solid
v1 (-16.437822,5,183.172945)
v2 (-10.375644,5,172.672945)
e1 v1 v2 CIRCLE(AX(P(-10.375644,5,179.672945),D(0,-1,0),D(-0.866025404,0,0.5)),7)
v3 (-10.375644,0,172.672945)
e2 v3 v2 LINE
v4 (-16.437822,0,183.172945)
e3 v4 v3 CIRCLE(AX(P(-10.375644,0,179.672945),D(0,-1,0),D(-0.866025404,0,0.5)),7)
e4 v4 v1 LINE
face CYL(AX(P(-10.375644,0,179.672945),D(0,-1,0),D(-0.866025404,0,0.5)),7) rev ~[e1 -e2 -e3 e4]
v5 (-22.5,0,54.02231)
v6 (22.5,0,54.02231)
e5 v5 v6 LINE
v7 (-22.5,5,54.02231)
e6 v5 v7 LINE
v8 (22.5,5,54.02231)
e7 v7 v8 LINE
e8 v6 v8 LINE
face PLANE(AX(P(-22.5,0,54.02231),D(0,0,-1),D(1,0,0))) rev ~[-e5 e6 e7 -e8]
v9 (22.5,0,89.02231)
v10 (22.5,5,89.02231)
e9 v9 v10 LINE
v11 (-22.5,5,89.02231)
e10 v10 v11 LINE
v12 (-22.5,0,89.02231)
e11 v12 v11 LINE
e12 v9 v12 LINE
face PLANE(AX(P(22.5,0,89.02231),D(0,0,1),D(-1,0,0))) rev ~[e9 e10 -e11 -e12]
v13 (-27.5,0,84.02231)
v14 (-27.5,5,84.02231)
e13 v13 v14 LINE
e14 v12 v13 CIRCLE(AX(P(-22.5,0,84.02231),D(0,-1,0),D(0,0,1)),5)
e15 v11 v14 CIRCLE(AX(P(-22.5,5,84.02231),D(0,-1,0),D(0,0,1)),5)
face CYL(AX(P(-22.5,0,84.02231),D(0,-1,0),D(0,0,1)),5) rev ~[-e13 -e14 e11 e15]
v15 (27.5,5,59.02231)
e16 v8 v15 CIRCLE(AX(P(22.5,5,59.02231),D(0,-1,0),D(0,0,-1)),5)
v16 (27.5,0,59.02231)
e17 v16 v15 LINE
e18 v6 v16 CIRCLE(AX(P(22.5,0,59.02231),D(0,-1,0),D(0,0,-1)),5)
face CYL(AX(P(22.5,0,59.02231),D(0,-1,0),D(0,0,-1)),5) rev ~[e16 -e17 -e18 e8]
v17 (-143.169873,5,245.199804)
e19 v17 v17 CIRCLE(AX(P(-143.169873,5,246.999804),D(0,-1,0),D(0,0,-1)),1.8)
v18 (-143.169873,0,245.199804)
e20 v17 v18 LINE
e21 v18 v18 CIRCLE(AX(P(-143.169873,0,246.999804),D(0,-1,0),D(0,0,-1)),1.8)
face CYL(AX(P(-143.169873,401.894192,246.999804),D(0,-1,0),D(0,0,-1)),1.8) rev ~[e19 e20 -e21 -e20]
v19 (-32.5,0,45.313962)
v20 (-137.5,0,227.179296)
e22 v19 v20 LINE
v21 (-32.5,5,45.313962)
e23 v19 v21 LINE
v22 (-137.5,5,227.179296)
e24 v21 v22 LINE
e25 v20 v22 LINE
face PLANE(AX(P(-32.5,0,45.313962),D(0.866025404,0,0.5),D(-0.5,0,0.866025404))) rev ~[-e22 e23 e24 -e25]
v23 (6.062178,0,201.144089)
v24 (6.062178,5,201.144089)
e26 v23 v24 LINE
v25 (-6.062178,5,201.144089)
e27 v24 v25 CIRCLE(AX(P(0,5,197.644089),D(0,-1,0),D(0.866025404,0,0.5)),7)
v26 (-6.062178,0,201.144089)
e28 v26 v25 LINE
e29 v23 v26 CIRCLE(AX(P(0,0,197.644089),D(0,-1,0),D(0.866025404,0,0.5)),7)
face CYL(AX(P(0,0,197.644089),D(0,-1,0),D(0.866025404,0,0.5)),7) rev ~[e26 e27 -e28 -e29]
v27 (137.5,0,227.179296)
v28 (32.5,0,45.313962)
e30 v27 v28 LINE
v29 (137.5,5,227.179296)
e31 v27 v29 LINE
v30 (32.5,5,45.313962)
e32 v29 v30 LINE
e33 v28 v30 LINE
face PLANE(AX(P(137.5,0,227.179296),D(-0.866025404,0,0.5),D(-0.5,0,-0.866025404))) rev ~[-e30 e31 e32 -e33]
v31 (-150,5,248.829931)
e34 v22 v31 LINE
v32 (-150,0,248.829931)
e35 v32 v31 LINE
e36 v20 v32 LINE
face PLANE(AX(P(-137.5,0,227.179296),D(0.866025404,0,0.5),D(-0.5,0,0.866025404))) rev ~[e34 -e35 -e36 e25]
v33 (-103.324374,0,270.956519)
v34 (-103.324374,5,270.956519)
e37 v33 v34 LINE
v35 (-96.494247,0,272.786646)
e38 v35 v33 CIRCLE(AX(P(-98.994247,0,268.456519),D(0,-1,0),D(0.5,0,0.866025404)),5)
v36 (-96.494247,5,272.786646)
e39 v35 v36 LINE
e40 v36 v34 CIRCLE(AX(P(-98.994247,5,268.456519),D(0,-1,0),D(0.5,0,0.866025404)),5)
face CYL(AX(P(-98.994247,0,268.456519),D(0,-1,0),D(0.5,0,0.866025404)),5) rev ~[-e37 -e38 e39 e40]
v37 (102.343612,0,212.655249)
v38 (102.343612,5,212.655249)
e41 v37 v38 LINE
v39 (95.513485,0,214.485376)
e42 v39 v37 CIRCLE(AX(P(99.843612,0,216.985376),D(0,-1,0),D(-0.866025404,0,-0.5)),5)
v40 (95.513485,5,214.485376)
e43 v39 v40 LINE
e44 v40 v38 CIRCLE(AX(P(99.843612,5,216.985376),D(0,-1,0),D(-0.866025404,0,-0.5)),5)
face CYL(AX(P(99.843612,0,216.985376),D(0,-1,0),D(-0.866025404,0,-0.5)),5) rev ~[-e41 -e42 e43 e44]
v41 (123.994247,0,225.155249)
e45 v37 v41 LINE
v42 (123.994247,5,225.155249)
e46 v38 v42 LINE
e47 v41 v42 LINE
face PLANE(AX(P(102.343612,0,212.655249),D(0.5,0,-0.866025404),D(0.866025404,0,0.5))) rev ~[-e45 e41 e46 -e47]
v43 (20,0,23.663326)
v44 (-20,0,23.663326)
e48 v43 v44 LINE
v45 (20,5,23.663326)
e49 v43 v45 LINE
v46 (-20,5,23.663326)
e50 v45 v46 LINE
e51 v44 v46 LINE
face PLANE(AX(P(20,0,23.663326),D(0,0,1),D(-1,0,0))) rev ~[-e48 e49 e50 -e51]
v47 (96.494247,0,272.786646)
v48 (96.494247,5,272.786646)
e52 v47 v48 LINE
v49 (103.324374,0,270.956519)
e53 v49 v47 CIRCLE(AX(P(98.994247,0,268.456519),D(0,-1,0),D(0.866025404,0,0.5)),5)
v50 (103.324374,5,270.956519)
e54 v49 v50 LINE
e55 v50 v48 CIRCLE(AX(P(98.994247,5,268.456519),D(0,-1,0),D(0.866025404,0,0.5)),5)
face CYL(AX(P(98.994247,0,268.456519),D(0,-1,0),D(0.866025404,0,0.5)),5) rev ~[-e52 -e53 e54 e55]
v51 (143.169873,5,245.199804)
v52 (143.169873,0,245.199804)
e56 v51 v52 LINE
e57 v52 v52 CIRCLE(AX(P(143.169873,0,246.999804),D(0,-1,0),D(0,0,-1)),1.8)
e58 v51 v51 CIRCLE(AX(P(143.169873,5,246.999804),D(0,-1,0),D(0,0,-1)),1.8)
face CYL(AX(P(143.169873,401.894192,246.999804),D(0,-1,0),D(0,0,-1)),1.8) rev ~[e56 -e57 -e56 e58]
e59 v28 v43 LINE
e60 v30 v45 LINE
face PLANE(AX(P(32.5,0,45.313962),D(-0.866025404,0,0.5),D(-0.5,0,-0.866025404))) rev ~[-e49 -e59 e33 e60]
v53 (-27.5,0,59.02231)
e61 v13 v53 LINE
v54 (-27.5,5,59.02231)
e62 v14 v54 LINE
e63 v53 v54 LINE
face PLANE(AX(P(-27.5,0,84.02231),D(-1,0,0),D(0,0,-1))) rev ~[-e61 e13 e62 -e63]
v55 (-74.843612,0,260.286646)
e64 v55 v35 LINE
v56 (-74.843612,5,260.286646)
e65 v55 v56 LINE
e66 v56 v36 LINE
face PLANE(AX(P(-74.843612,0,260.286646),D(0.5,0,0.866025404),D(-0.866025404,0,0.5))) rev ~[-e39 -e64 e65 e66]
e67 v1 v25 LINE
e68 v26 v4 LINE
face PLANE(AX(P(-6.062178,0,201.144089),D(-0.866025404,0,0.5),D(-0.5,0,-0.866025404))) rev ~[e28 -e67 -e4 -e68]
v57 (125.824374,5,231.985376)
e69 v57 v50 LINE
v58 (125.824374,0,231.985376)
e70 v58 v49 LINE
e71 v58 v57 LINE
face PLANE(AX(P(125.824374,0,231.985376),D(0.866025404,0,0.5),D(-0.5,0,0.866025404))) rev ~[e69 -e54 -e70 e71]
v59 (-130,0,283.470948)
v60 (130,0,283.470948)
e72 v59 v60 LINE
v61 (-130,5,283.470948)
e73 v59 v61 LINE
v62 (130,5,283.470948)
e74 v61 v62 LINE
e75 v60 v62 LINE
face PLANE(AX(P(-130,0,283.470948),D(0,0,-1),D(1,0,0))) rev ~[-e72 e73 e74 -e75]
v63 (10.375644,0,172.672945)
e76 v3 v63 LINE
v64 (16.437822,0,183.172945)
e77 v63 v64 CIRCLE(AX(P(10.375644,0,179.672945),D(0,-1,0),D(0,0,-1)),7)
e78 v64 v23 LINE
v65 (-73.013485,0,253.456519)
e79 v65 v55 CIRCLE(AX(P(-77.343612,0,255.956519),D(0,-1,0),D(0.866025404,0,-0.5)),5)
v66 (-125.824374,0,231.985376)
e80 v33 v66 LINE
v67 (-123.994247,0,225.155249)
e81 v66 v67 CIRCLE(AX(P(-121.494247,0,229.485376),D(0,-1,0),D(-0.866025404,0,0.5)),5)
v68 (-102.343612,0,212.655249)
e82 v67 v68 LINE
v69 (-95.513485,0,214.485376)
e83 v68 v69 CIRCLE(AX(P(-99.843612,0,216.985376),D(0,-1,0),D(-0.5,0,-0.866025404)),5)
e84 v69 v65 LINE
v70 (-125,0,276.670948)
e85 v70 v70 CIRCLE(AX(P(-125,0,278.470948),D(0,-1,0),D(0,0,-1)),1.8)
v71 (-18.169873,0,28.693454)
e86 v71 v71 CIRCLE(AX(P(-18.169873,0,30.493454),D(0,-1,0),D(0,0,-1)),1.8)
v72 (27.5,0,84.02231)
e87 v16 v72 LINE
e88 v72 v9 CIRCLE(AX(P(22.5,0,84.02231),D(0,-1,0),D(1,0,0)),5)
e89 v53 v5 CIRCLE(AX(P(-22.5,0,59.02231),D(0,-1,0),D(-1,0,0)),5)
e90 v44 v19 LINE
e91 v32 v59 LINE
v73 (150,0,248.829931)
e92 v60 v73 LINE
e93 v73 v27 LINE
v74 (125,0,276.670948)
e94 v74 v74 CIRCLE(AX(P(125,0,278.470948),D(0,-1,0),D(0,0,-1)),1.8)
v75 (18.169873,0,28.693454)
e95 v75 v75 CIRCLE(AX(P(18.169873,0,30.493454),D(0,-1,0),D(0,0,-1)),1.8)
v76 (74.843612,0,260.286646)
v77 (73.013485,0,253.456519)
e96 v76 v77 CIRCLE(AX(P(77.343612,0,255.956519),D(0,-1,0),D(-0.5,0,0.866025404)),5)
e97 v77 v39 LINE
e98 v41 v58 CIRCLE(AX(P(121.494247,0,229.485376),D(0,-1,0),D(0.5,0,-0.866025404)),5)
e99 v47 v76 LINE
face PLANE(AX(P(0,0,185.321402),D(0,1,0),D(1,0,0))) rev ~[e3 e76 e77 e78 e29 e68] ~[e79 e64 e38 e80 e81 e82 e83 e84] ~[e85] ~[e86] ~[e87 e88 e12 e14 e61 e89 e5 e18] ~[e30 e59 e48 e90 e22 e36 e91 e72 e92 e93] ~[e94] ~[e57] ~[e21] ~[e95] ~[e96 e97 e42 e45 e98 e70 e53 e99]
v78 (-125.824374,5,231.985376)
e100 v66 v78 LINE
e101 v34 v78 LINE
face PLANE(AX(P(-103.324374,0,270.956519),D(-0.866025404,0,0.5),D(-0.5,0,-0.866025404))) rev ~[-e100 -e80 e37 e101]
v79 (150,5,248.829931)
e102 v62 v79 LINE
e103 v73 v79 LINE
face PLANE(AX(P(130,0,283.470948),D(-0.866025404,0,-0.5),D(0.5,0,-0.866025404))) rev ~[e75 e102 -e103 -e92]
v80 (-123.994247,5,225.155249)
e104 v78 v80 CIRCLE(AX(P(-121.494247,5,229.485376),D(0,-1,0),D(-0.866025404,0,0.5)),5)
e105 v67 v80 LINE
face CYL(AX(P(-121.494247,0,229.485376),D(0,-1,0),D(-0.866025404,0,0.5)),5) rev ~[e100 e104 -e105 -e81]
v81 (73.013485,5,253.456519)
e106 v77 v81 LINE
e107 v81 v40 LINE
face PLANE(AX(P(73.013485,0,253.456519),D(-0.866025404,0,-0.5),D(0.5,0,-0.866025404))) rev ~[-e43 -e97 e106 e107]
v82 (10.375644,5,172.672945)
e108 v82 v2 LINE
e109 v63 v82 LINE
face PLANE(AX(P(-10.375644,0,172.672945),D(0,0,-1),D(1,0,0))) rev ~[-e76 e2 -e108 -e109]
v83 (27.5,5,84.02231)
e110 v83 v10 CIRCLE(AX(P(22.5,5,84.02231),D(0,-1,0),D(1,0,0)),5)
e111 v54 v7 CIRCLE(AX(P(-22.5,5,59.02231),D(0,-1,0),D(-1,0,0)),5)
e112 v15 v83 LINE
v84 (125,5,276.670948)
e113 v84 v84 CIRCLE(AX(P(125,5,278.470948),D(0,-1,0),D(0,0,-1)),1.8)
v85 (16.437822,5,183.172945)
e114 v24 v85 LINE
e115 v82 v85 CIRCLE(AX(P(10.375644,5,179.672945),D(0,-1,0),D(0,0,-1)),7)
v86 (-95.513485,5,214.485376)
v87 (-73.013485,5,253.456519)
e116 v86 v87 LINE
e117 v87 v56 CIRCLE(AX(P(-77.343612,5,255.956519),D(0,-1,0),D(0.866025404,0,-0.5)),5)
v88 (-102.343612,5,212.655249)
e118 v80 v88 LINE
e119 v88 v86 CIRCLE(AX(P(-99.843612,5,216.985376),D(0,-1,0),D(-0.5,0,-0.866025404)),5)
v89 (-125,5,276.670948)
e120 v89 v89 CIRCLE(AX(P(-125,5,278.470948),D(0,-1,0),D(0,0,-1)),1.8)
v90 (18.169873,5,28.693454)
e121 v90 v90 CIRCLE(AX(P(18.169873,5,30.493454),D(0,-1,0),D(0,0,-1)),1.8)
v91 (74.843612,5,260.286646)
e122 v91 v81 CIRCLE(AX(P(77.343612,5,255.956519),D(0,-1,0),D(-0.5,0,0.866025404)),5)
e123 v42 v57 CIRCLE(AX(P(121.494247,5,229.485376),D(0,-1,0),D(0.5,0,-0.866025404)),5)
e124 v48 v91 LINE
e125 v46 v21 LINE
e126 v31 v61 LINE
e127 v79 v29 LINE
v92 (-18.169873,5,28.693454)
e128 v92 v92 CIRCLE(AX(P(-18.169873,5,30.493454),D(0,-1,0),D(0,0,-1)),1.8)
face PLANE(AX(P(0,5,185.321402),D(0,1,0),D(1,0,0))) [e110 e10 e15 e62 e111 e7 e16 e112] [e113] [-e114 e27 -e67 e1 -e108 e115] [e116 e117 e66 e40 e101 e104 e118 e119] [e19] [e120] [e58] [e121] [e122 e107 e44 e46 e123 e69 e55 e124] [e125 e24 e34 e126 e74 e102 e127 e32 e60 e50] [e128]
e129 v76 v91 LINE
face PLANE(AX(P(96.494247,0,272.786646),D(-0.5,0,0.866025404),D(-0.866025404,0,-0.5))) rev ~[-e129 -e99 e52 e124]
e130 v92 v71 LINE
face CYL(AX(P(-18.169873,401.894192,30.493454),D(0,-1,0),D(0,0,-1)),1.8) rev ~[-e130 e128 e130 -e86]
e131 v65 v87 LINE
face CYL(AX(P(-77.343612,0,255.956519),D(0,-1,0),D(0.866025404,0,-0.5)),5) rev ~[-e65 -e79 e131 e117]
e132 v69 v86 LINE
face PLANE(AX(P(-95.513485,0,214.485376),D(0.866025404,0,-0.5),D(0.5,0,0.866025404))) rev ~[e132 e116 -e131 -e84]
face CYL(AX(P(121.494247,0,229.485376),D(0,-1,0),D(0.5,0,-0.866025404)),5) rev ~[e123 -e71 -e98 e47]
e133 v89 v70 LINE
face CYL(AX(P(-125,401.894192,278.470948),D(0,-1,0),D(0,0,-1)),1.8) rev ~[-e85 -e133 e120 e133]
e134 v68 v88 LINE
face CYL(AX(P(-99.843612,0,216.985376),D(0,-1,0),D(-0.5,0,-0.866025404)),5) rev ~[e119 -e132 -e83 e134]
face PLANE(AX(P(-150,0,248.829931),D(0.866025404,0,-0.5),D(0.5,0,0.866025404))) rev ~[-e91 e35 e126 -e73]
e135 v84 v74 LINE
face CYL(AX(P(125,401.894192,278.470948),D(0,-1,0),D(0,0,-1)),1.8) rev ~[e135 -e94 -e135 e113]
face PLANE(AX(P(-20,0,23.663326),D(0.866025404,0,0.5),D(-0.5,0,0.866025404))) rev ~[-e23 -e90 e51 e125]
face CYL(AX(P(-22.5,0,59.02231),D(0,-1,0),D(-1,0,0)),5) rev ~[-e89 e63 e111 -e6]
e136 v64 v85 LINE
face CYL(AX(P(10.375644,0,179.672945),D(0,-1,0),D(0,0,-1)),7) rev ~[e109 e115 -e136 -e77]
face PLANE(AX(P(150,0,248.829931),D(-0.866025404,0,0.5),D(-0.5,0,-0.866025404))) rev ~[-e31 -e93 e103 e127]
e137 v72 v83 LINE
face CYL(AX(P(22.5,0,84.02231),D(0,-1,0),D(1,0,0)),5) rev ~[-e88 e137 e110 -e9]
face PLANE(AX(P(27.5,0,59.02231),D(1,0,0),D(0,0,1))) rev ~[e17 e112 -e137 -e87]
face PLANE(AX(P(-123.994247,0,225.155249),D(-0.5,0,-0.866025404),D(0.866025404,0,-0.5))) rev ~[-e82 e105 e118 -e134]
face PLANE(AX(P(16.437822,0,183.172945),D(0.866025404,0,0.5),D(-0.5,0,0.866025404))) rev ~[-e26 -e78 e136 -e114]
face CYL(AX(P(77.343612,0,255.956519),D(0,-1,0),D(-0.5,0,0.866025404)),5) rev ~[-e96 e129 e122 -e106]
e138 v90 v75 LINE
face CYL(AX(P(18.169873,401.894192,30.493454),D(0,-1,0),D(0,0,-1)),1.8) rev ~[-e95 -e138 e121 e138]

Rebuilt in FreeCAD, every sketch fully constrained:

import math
import FreeCAD as App
import Part
import Sketcher
Q = App.Units.Quantity

doc = App.newDocument("Part")
body = doc.addObject("PartDesign::Body", "Body")

sketch1 = body.newObject("Sketcher::SketchObject", "Sketch")
sketch1.AttachmentSupport = (doc.getObject("XZ_Plane"), [""])
sketch1.MapMode = "FlatFace"
sketch1.addGeometry([
    Part.LineSegment(App.Vector(-20, 24, 0), App.Vector(-32, 45, 0)),
    Part.LineSegment(App.Vector(-32, 45, 0), App.Vector(-138, 227, 0)),
    Part.LineSegment(App.Vector(-138, 227, 0), App.Vector(-150, 249, 0)),
    Part.LineSegment(App.Vector(-150, 249, 0), App.Vector(-130, 283, 0)),
    Part.LineSegment(App.Vector(-130, 283, 0), App.Vector(130, 283, 0)),
    Part.LineSegment(App.Vector(130, 283, 0), App.Vector(150, 249, 0)),
    Part.LineSegment(App.Vector(150, 249, 0), App.Vector(138, 227, 0)),
    Part.LineSegment(App.Vector(138, 227, 0), App.Vector(32, 45, 0)),
    Part.LineSegment(App.Vector(32, 45, 0), App.Vector(20, 24, 0)),
    Part.LineSegment(App.Vector(20, 24, 0), App.Vector(-20, 24, 0)),
    Part.LineSegment(App.Vector(-75, 260, 0), App.Vector(-96, 273, 0)),
    Part.ArcOfCircle(Part.Circle(App.Vector(-99, 268, 0), App.Vector(0, 0, 1), 5), math.radians(60), math.radians(150)),
    Part.LineSegment(App.Vector(-103, 271, 0), App.Vector(-126, 232, 0)),
    Part.ArcOfCircle(Part.Circle(App.Vector(-121, 229, 0), App.Vector(0, 0, 1), 5), math.radians(150), math.radians(240)),
    Part.LineSegment(App.Vector(-124, 225, 0), App.Vector(-102, 213, 0)),
    Part.ArcOfCircle(Part.Circle(App.Vector(-100, 217, 0), App.Vector(0, 0, 1), 5), math.radians(-120), math.radians(-30)),
    Part.LineSegment(App.Vector(-96, 214, 0), App.Vector(-73, 253, 0)),
    Part.ArcOfCircle(Part.Circle(App.Vector(-77, 256, 0), App.Vector(0, 0, 1), 5), math.radians(-30), math.radians(60)),
    Part.LineSegment(App.Vector(96, 273, 0), App.Vector(75, 260, 0)),
    Part.ArcOfCircle(Part.Circle(App.Vector(77, 256, 0), App.Vector(0, 0, 1), 5), math.radians(120), math.radians(210)),
    Part.LineSegment(App.Vector(73, 253, 0), App.Vector(96, 214, 0)),
    Part.ArcOfCircle(Part.Circle(App.Vector(100, 217, 0), App.Vector(0, 0, 1), 5), math.radians(-150), math.radians(-60)),
    Part.LineSegment(App.Vector(102, 213, 0), App.Vector(124, 225, 0)),
    Part.ArcOfCircle(Part.Circle(App.Vector(121, 229, 0), App.Vector(0, 0, 1), 5), math.radians(-60), math.radians(30)),
    Part.LineSegment(App.Vector(126, 232, 0), App.Vector(103, 271, 0)),
    Part.ArcOfCircle(Part.Circle(App.Vector(99, 268, 0), App.Vector(0, 0, 1), 5), math.radians(30), math.radians(120)),
    Part.ArcOfCircle(Part.Circle(App.Vector(22, 84, 0), App.Vector(0, 0, 1), 5), math.radians(0), math.radians(90)),
    Part.LineSegment(App.Vector(22, 89, 0), App.Vector(-22, 89, 0)),
    Part.ArcOfCircle(Part.Circle(App.Vector(-22, 84, 0), App.Vector(0, 0, 1), 5), math.radians(90), math.radians(180)),
    Part.LineSegment(App.Vector(-28, 84, 0), App.Vector(-28, 59, 0)),
    Part.ArcOfCircle(Part.Circle(App.Vector(-22, 59, 0), App.Vector(0, 0, 1), 5), math.radians(180), math.radians(270)),
    Part.LineSegment(App.Vector(-22, 54, 0), App.Vector(22, 54, 0)),
    Part.ArcOfCircle(Part.Circle(App.Vector(22, 59, 0), App.Vector(0, 0, 1), 5), math.radians(-90), math.radians(0)),
    Part.LineSegment(App.Vector(28, 59, 0), App.Vector(28, 84, 0)),
], False)
sketch1.addConstraint([
    Sketcher.Constraint("Coincident", 0, 2, 1, 1),
    Sketcher.Constraint("Coincident", 1, 2, 2, 1),
    Sketcher.Constraint("Coincident", 2, 2, 3, 1),
    Sketcher.Constraint("Coincident", 3, 2, 4, 1),
    Sketcher.Constraint("Coincident", 4, 2, 5, 1),
    Sketcher.Constraint("Coincident", 5, 2, 6, 1),
    Sketcher.Constraint("Coincident", 6, 2, 7, 1),
    Sketcher.Constraint("Coincident", 7, 2, 8, 1),
    Sketcher.Constraint("Coincident", 8, 2, 9, 1),
    Sketcher.Constraint("Coincident", 9, 2, 0, 1),
    Sketcher.Constraint("Tangent", 10, 2, 11, 1),
    Sketcher.Constraint("Tangent", 11, 2, 12, 1),
    Sketcher.Constraint("Tangent", 12, 2, 13, 1),
    Sketcher.Constraint("Tangent", 13, 2, 14, 1),
    Sketcher.Constraint("Tangent", 14, 2, 15, 1),
    Sketcher.Constraint("Tangent", 15, 2, 16, 1),
    Sketcher.Constraint("Tangent", 16, 2, 17, 1),
    Sketcher.Constraint("Tangent", 17, 2, 10, 1),
    Sketcher.Constraint("Tangent", 18, 2, 19, 1),
    Sketcher.Constraint("Tangent", 19, 2, 20, 1),
    Sketcher.Constraint("Tangent", 20, 2, 21, 1),
    Sketcher.Constraint("Tangent", 21, 2, 22, 1),
    Sketcher.Constraint("Tangent", 22, 2, 23, 1),
    Sketcher.Constraint("Tangent", 23, 2, 24, 1),
    Sketcher.Constraint("Tangent", 24, 2, 25, 1),
    Sketcher.Constraint("Tangent", 25, 2, 18, 1),
    Sketcher.Constraint("Tangent", 26, 2, 27, 1),
    Sketcher.Constraint("Tangent", 27, 2, 28, 1),
    Sketcher.Constraint("Tangent", 28, 2, 29, 1),
    Sketcher.Constraint("Tangent", 29, 2, 30, 1),
    Sketcher.Constraint("Tangent", 30, 2, 31, 1),
    Sketcher.Constraint("Tangent", 31, 2, 32, 1),
    Sketcher.Constraint("Tangent", 32, 2, 33, 1),
    Sketcher.Constraint("Tangent", 33, 2, 26, 1),
    Sketcher.Constraint("Horizontal", 4),
    Sketcher.Constraint("Horizontal", 9),
    Sketcher.Constraint("Horizontal", 27),
    Sketcher.Constraint("Vertical", 29),
    Sketcher.Constraint("Horizontal", 31),
    Sketcher.Constraint("Vertical", 33),
    Sketcher.Constraint("Equal", 11, 13),
    Sketcher.Constraint("Equal", 13, 15),
    Sketcher.Constraint("Equal", 15, 17),
    Sketcher.Constraint("Equal", 17, 19),
    Sketcher.Constraint("Equal", 19, 21),
    Sketcher.Constraint("Equal", 21, 23),
    Sketcher.Constraint("Equal", 23, 25),
    Sketcher.Constraint("Equal", 25, 26),
    Sketcher.Constraint("Equal", 26, 28),
    Sketcher.Constraint("Equal", 28, 30),
    Sketcher.Constraint("Equal", 30, 32),
    Sketcher.Constraint("Symmetric", 17, 3, 19, 3, -2),
    Sketcher.Constraint("Symmetric", 15, 3, 21, 3, -2),
    Sketcher.Constraint("Symmetric", 13, 3, 23, 3, -2),
    Sketcher.Constraint("Symmetric", 11, 3, 25, 3, -2),
    Sketcher.Constraint("Symmetric", 2, 2, 5, 2, -2),
    Sketcher.Constraint("Symmetric", 1, 2, 6, 2, -2),
    Sketcher.Constraint("Symmetric", 0, 2, 7, 2, -2),
    Sketcher.Constraint("Parallel", 0, 1),
    Sketcher.Constraint("Parallel", 1, 2),
    Sketcher.Constraint("Parallel", 2, 5),
    Sketcher.Constraint("Parallel", 3, 6),
    Sketcher.Constraint("Parallel", 7, 8),
    Sketcher.Constraint("Perpendicular", 8, 10),
    Sketcher.Constraint("Perpendicular", 10, 12),
    Sketcher.Constraint("Perpendicular", 12, 14),
    Sketcher.Constraint("Perpendicular", 14, 16),
    Sketcher.Constraint("Equal", 0, 2),
    Sketcher.Constraint("Equal", 8, 10),
    Sketcher.Constraint("Radius", 11, 5.0),
    Sketcher.Constraint("DistanceX", 4, 1, 4, 2, 260.0),
    Sketcher.Constraint("DistanceX", 9, 2, 9, 1, 40.0),
    Sketcher.Constraint("DistanceX", 27, 2, 27, 1, 45.0),
    Sketcher.Constraint("DistanceY", 29, 2, 29, 1, 25.0),
    Sketcher.Constraint("Angle", 0, Q("120 deg")),
    Sketcher.Constraint("Distance", 0, 25.0),
    Sketcher.Constraint("Distance", 1, 210.0),
    Sketcher.Constraint("Distance", 12, 45.0),
    Sketcher.Constraint("DistanceX", 0, 2, 30, 3, 10.0),
    Sketcher.Constraint("DistanceY", 10, 2, 3, 2, 10.684301),
    Sketcher.Constraint("DistanceY", -1, 1, 11, 3, 268.456519),
    Sketcher.Constraint("DistanceY", -1, 1, 26, 3, 84.02231),
    Sketcher.Constraint("DistanceX", 11, 3, 19, 3, 176.337859),
])
pad1 = body.newObject("PartDesign::Pad", "Pad")
pad1.Profile = sketch1
pad1.Length = 5
pad1.Reversed = True

sketch2 = body.newObject("Sketcher::SketchObject", "Sketch001")
sketch2.AttachmentSupport = (doc.getObject("XZ_Plane"), [""])
sketch2.MapMode = "FlatFace"
sketch2.AttachmentOffset = App.Placement(App.Vector(0, 0, -5), App.Rotation())
sketch2.addGeometry([
    Part.Circle(App.Vector(-143.2, 247, 0), App.Vector(0, 0, 1), 1.8),
    Part.Circle(App.Vector(-125, 278.5, 0), App.Vector(0, 0, 1), 1.8),
    Part.Circle(App.Vector(125, 278.5, 0), App.Vector(0, 0, 1), 1.8),
    Part.Circle(App.Vector(143.2, 247, 0), App.Vector(0, 0, 1), 1.8),
    Part.Circle(App.Vector(-18.2, 30.5, 0), App.Vector(0, 0, 1), 1.8),
    Part.Circle(App.Vector(18.2, 30.5, 0), App.Vector(0, 0, 1), 1.8),
], False)
sketch2.addConstraint([
    Sketcher.Constraint("Equal", 0, 1),
    Sketcher.Constraint("Equal", 1, 2),
    Sketcher.Constraint("Equal", 2, 3),
    Sketcher.Constraint("Equal", 3, 4),
    Sketcher.Constraint("Equal", 4, 5),
    Sketcher.Constraint("Symmetric", 1, 3, 2, 3, -2),
    Sketcher.Constraint("Symmetric", 0, 3, 3, 3, -2),
    Sketcher.Constraint("Symmetric", 4, 3, 5, 3, -2),
    Sketcher.Constraint("Diameter", 0, 3.6),
    Sketcher.Constraint("DistanceX", 1, 3, -1, 1, 125.0),
    Sketcher.Constraint("DistanceX", 0, 3, 4, 3, 125.0),
    Sketcher.Constraint("DistanceY", 4, 3, 0, 3, 216.506351),
    Sketcher.Constraint("DistanceX", 0, 3, -1, 1, 143.169873),
    Sketcher.Constraint("DistanceY", -1, 1, 0, 3, 246.999804),
    Sketcher.Constraint("DistanceY", -1, 1, 1, 3, 278.470948),
])
doc.recompute()
hole = body.newObject("PartDesign::Hole", "Hole")
hole.Profile = sketch2
hole.ThreadType = "None"
hole.Diameter = 3.6
hole.DepthType = "ThroughAll"
hole.Reversed = True

sketch3 = body.newObject("Sketcher::SketchObject", "Sketch002")
sketch3.AttachmentSupport = (doc.getObject("XZ_Plane"), [""])
sketch3.MapMode = "FlatFace"
sketch3.addGeometry([
    Part.LineSegment(App.Vector(16, 183, 0), App.Vector(6, 201, 0)),
    Part.ArcOfCircle(Part.Circle(App.Vector(0, 198, 0), App.Vector(0, 0, 1), 7), math.radians(30), math.radians(150)),
    Part.LineSegment(App.Vector(-6, 201, 0), App.Vector(-16, 183, 0)),
    Part.ArcOfCircle(Part.Circle(App.Vector(-10, 180, 0), App.Vector(0, 0, 1), 7), math.radians(150), math.radians(270)),
    Part.LineSegment(App.Vector(-10, 173, 0), App.Vector(10, 173, 0)),
    Part.ArcOfCircle(Part.Circle(App.Vector(10, 180, 0), App.Vector(0, 0, 1), 7), math.radians(-90), math.radians(30)),
], False)
sketch3.addConstraint([
    Sketcher.Constraint("Tangent", 0, 2, 1, 1),
    Sketcher.Constraint("Tangent", 1, 2, 2, 1),
    Sketcher.Constraint("Tangent", 2, 2, 3, 1),
    Sketcher.Constraint("Tangent", 3, 2, 4, 1),
    Sketcher.Constraint("Tangent", 4, 2, 5, 1),
    Sketcher.Constraint("Tangent", 5, 2, 0, 1),
    Sketcher.Constraint("Horizontal", 4),
    Sketcher.Constraint("Equal", 1, 3),
    Sketcher.Constraint("Equal", 3, 5),
    Sketcher.Constraint("Symmetric", 0, 2, 1, 2, -2),
    Sketcher.Constraint("Radius", 1, 7.0),
    Sketcher.Constraint("Angle", 0, Q("120 deg")),
    Sketcher.Constraint("DistanceX", 2, 2, 0, 2, 22.5),
    Sketcher.Constraint("DistanceY", -1, 1, 1, 3, 197.644089),
])
pocket1 = body.newObject("PartDesign::Pocket", "Pocket")
pocket1.Profile = sketch3
pocket1.Length = 10

doc.recompute()
